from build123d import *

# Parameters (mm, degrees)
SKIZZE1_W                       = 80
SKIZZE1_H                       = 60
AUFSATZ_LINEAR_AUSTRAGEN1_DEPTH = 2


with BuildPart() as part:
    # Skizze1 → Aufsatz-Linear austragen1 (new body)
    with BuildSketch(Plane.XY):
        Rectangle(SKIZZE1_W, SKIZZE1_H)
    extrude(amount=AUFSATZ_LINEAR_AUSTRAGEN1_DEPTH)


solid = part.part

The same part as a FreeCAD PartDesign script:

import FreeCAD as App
import Part
import Sketcher

V = App.Vector

doc = App.newDocument("Part")
params = doc.addObject("Spreadsheet::Sheet", "Params")
for row, (alias, value) in enumerate([
    ("sketch1_width", "80 mm"),
    ("sketch1_height", "60 mm"),
    ("pad1_length", "2 mm"),
], start=1):
    params.set(f"A{row}", alias)
    params.set(f"B{row}", "=" + value)
    params.setAlias(f"B{row}", alias)

body = doc.addObject("PartDesign::Body", "Body")

# Sketch on XY plane
sketch1 = body.newObject("Sketcher::SketchObject", "Sketch")
sketch1.AttachmentSupport = (doc.getObject("XY_Plane"), [""])
sketch1.MapMode = "FlatFace"
sketch1.addGeometry([
    Part.LineSegment(V(-40, 30, 0), V(-40, -30, 0)),
    Part.LineSegment(V(-40, -30, 0), V(40, -30, 0)),
    Part.LineSegment(V(40, -30, 0), V(40, 30, 0)),
    Part.LineSegment(V(40, 30, 0), V(-40, 30, 0)),
], False)
sketch1.addConstraint([
    Sketcher.Constraint("Coincident", 0, 2, 1, 1),
    Sketcher.Constraint("Coincident", 1, 2, 2, 1),
    Sketcher.Constraint("Coincident", 2, 2, 3, 1),
    Sketcher.Constraint("Coincident", 3, 2, 0, 1),
    Sketcher.Constraint("Vertical", 0),
    Sketcher.Constraint("Horizontal", 1),
    Sketcher.Constraint("Vertical", 2),
    Sketcher.Constraint("Horizontal", 3),
    Sketcher.Constraint("Symmetric", 0, 2, 2, 2, -1, 1),
    Sketcher.Constraint("DistanceX", 1, 1, 1, 2, 80.0),
    Sketcher.Constraint("DistanceY", 0, 2, 0, 1, 60.0),
])
sketch1.setExpression("Constraints[9]", "Params.sketch1_width")
sketch1.setExpression("Constraints[10]", "Params.sketch1_height")
pad1 = body.newObject("PartDesign::Pad", "Pad")
pad1.Profile = sketch1
pad1.setExpression("Length", "Params.pad1_length")

doc.recompute()
